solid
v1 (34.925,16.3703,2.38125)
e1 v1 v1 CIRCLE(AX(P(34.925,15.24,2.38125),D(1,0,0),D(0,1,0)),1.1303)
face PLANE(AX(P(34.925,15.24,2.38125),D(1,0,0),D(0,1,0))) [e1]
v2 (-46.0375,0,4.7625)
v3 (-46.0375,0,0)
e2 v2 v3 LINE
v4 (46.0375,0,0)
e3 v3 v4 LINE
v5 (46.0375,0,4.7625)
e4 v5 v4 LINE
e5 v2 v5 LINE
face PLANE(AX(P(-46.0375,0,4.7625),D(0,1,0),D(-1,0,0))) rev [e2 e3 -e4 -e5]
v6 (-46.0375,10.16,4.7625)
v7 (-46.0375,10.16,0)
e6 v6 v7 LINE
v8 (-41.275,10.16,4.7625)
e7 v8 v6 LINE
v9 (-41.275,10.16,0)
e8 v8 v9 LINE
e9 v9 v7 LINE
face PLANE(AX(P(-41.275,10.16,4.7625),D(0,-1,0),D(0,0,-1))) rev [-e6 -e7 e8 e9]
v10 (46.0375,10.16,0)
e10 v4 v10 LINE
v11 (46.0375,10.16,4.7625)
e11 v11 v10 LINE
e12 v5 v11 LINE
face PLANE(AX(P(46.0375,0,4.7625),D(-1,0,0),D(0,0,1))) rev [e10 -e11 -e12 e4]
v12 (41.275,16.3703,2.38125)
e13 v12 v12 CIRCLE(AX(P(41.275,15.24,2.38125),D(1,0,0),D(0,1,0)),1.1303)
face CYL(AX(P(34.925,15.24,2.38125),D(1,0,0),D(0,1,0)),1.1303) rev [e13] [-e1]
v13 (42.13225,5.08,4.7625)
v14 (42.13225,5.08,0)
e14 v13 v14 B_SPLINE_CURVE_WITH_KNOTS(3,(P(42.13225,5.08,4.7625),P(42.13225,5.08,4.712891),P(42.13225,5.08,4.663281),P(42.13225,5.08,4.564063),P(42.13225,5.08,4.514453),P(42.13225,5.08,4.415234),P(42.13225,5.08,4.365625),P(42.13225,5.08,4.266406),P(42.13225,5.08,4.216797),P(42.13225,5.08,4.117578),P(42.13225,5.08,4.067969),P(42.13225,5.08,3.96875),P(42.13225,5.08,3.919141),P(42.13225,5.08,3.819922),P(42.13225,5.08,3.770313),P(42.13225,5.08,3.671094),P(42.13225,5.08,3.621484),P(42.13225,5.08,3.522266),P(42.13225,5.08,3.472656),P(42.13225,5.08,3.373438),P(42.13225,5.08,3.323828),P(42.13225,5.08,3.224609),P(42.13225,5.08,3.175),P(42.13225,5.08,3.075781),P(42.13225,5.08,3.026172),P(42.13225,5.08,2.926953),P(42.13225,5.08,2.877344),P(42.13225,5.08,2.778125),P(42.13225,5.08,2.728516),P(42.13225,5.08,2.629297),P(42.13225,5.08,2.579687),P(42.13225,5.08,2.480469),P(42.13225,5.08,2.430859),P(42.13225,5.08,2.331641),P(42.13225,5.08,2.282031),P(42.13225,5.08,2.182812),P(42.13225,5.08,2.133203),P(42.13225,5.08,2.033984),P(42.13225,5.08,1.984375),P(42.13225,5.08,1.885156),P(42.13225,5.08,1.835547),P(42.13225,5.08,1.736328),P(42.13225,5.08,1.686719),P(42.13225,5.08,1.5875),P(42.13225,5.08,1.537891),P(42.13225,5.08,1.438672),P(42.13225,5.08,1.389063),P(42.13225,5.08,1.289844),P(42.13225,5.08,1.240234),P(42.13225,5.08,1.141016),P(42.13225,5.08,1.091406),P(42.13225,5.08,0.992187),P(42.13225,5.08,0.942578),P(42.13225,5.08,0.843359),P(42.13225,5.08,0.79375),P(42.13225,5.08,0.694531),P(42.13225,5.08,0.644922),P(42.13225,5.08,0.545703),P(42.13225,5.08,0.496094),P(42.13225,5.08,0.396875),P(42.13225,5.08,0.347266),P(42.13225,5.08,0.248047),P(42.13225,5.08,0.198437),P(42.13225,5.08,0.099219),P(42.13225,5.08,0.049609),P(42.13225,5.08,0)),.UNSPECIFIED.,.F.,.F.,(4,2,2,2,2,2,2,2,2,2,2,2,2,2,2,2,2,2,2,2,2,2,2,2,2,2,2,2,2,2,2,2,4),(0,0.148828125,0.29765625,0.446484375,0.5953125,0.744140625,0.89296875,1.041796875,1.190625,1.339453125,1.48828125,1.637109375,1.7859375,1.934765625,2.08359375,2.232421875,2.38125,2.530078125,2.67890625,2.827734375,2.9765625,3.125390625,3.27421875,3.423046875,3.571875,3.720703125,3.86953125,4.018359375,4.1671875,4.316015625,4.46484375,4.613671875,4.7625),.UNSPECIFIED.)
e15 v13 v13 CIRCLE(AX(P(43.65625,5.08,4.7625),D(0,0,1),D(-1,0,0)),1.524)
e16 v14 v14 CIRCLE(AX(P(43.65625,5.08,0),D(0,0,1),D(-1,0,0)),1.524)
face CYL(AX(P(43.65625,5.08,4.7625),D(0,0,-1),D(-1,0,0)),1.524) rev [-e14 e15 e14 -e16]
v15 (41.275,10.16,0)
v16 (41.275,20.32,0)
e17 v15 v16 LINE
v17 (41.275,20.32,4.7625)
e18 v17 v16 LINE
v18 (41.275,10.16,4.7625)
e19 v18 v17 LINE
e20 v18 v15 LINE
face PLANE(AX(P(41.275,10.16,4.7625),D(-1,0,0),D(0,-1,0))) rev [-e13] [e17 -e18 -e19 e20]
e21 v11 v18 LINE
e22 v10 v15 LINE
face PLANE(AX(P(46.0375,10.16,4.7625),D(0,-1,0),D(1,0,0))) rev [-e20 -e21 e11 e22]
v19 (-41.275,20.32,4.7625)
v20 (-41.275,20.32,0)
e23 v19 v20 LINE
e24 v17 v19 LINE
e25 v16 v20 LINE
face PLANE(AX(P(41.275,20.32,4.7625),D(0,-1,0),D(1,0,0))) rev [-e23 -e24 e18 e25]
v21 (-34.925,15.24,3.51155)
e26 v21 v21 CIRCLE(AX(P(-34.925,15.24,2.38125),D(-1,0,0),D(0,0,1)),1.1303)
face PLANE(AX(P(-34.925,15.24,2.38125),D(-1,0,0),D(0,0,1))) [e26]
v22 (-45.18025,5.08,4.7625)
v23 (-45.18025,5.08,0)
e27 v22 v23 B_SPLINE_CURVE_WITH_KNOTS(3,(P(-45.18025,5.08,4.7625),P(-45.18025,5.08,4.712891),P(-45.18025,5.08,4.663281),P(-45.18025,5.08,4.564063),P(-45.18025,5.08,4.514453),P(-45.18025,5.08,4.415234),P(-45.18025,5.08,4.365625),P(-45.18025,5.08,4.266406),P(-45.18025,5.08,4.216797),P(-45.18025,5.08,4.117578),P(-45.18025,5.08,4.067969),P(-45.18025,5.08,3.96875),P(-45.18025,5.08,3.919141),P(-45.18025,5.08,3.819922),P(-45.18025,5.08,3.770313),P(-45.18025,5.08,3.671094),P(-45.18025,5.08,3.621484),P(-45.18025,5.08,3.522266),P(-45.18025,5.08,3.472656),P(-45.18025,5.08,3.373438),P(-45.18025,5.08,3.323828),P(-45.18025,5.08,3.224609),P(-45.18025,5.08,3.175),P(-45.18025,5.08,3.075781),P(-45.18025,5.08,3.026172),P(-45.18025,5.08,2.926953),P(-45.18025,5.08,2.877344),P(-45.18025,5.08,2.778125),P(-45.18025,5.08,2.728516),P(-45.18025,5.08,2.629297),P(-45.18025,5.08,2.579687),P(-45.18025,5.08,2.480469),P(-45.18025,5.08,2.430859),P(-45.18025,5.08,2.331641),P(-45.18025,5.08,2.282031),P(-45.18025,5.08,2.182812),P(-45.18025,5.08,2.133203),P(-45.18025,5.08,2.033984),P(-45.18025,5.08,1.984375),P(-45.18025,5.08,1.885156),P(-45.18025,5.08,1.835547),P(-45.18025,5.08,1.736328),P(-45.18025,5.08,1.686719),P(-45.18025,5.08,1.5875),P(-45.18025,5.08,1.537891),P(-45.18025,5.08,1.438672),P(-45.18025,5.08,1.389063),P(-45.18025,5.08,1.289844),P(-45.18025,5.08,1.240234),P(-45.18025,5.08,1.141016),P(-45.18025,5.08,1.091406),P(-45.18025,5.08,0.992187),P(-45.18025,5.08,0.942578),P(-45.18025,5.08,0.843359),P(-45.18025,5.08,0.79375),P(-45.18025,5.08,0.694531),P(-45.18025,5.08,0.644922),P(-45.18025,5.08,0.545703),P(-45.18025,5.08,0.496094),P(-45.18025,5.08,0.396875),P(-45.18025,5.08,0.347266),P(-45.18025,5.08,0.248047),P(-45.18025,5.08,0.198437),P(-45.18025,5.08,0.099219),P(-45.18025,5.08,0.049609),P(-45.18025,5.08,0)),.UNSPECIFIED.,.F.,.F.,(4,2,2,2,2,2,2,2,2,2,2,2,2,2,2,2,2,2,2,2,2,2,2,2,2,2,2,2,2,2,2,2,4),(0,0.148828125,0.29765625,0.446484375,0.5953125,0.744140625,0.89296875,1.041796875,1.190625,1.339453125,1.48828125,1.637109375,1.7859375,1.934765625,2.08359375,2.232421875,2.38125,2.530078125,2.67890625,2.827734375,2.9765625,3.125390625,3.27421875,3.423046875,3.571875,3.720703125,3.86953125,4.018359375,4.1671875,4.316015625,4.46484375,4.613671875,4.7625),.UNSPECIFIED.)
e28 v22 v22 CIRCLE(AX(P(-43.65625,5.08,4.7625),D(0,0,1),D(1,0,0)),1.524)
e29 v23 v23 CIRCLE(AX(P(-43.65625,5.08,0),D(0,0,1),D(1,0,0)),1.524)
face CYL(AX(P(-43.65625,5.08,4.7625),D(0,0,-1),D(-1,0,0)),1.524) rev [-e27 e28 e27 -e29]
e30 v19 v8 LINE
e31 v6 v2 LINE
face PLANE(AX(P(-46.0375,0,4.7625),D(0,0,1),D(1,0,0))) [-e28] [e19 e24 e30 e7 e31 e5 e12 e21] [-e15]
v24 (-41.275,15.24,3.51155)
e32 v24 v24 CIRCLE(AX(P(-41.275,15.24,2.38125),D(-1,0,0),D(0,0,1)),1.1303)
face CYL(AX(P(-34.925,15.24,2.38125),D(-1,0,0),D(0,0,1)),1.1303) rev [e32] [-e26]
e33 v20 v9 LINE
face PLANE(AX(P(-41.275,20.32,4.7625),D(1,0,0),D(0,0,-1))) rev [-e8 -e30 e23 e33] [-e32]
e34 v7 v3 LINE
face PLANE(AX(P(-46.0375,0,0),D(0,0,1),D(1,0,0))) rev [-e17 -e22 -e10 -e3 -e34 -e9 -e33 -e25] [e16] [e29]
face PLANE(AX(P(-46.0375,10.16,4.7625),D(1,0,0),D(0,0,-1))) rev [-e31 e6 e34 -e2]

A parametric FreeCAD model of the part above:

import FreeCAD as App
import Part
import Sketcher
Q = App.Units.Quantity

doc = App.newDocument("Part")
body = doc.addObject("PartDesign::Body", "Body")

# Sketch on XY plane
sketch1 = body.newObject("Sketcher::SketchObject", "Sketch")
sketch1.AttachmentSupport = (doc.getObject("XY_Plane"), [""])
sketch1.MapMode = "FlatFace"
sketch1.addGeometry(Part.LineSegment(App.Vector(-46, 0, 0), App.Vector(46, 0, 0)), False)
sketch1.addGeometry(Part.LineSegment(App.Vector(46, 0, 0), App.Vector(46, 10.2, 0)), False)
sketch1.addGeometry(Part.LineSegment(App.Vector(46, 10.2, 0), App.Vector(41.3, 10.2, 0)), False)
sketch1.addGeometry(Part.LineSegment(App.Vector(41.3, 10.2, 0), App.Vector(41.3, 20.3, 0)), False)
sketch1.addGeometry(Part.LineSegment(App.Vector(41.3, 20.3, 0), App.Vector(-41.3, 20.3, 0)), False)
sketch1.addGeometry(Part.LineSegment(App.Vector(-41.3, 20.3, 0), App.Vector(-41.3, 10.2, 0)), False)
sketch1.addGeometry(Part.LineSegment(App.Vector(-41.3, 10.2, 0), App.Vector(-46, 10.2, 0)), False)
sketch1.addGeometry(Part.LineSegment(App.Vector(-46, 10.2, 0), App.Vector(-46, 0, 0)), False)
sketch1.addGeometry(Part.Circle(App.Vector(-43.7, 5.1, 0), App.Vector(0, 0, 1), 1.5), False)
sketch1.addGeometry(Part.Circle(App.Vector(43.7, 5.1, 0), App.Vector(0, 0, 1), 1.5), False)
sketch1.addConstraint(Sketcher.Constraint("Coincident", 0, 2, 1, 1))
sketch1.addConstraint(Sketcher.Constraint("Coincident", 1, 2, 2, 1))
sketch1.addConstraint(Sketcher.Constraint("Coincident", 2, 2, 3, 1))
sketch1.addConstraint(Sketcher.Constraint("Coincident", 3, 2, 4, 1))
sketch1.addConstraint(Sketcher.Constraint("Coincident", 4, 2, 5, 1))
sketch1.addConstraint(Sketcher.Constraint("Coincident", 5, 2, 6, 1))
sketch1.addConstraint(Sketcher.Constraint("Coincident", 6, 2, 7, 1))
sketch1.addConstraint(Sketcher.Constraint("Coincident", 7, 2, 0, 1))
sketch1.addConstraint(Sketcher.Constraint("Horizontal", 0))
sketch1.addConstraint(Sketcher.Constraint("Vertical", 1))
sketch1.addConstraint(Sketcher.Constraint("Horizontal", 2))
sketch1.addConstraint(Sketcher.Constraint("Vertical", 3))
sketch1.addConstraint(Sketcher.Constraint("Horizontal", 4))
sketch1.addConstraint(Sketcher.Constraint("Vertical", 5))
sketch1.addConstraint(Sketcher.Constraint("Horizontal", 6))
sketch1.addConstraint(Sketcher.Constraint("Vertical", 7))
sketch1.addConstraint(Sketcher.Constraint("Equal", 8, 9))
sketch1.addConstraint(Sketcher.Constraint("Symmetric", 0, 2, 7, 2, -1, 1))
sketch1.addConstraint(Sketcher.Constraint("Symmetric", 8, 3, 9, 3, -2))
sketch1.addConstraint(Sketcher.Constraint("Symmetric", 2, 2, 5, 2, -2))
sketch1.addConstraint(Sketcher.Constraint("Equal", 1, 3))
sketch1.addConstraint(Sketcher.Constraint("Diameter", 8, Q("0.12 in")))
sketch1.addConstraint(Sketcher.Constraint("DistanceY", 1, 1, 1, 2, Q("0.4 in")))
sketch1.addConstraint(Sketcher.Constraint("DistanceX", 4, 2, 4, 1, Q("3.25 in")))
sketch1.addConstraint(Sketcher.Constraint("DistanceY", -1, 1, 8, 3, Q("0.2 in")))
sketch1.addConstraint(Sketcher.Constraint("DistanceX", 0, 1, 0, 2, Q("3.625 in")))
sketch1.addConstraint(Sketcher.Constraint("DistanceX", 8, 3, -1, 1, Q("1.71875 in")))
pad1 = body.newObject("PartDesign::Pad", "Pad")
pad1.Profile = sketch1
pad1.Length = Q("0.1875 in")

# Sketch on YZ plane
sketch2 = body.newObject("Sketcher::SketchObject", "Sketch001")
sketch2.AttachmentSupport = (doc.getObject("YZ_Plane"), [""])
sketch2.MapMode = "FlatFace"
sketch2.AttachmentOffset = App.Placement(App.Vector(0, 0, 1.625 * 25.4), App.Rotation())
sketch2.addGeometry(Part.Circle(App.Vector(15.2, 2.4, 0), App.Vector(0, 0, 1), 1.1), False)
sketch2.addConstraint(Sketcher.Constraint("Diameter", 0, Q("0.089 in")))
sketch2.addConstraint(Sketcher.Constraint("DistanceX", -1, 1, 0, 3, Q("0.6 in")))
sketch2.addConstraint(Sketcher.Constraint("DistanceY", -1, 1, 0, 3, Q("0.09375 in")))
pocket1 = body.newObject("PartDesign::Pocket", "Pocket")
pocket1.Profile = sketch2
pocket1.Length = Q("0.25 in")

# Sketch on YZ plane
sketch3 = body.newObject("Sketcher::SketchObject", "Sketch002")
sketch3.AttachmentSupport = (doc.getObject("YZ_Plane"), [""])
sketch3.MapMode = "FlatFace"
sketch3.AttachmentOffset = App.Placement(App.Vector(0, 0, -1.375 * 25.4), App.Rotation())
sketch3.addGeometry(Part.Circle(App.Vector(15.2, 2.4, 0), App.Vector(0, 0, 1), 1.1), False)
sketch3.addConstraint(Sketcher.Constraint("Diameter", 0, Q("0.089 in")))
sketch3.addConstraint(Sketcher.Constraint("DistanceX", -1, 1, 0, 3, Q("0.6 in")))
sketch3.addConstraint(Sketcher.Constraint("DistanceY", -1, 1, 0, 3, Q("0.09375 in")))
pocket2 = body.newObject("PartDesign::Pocket", "Pocket001")
pocket2.Profile = sketch3
pocket2.Length = Q("0.25 in")

doc.recompute()
